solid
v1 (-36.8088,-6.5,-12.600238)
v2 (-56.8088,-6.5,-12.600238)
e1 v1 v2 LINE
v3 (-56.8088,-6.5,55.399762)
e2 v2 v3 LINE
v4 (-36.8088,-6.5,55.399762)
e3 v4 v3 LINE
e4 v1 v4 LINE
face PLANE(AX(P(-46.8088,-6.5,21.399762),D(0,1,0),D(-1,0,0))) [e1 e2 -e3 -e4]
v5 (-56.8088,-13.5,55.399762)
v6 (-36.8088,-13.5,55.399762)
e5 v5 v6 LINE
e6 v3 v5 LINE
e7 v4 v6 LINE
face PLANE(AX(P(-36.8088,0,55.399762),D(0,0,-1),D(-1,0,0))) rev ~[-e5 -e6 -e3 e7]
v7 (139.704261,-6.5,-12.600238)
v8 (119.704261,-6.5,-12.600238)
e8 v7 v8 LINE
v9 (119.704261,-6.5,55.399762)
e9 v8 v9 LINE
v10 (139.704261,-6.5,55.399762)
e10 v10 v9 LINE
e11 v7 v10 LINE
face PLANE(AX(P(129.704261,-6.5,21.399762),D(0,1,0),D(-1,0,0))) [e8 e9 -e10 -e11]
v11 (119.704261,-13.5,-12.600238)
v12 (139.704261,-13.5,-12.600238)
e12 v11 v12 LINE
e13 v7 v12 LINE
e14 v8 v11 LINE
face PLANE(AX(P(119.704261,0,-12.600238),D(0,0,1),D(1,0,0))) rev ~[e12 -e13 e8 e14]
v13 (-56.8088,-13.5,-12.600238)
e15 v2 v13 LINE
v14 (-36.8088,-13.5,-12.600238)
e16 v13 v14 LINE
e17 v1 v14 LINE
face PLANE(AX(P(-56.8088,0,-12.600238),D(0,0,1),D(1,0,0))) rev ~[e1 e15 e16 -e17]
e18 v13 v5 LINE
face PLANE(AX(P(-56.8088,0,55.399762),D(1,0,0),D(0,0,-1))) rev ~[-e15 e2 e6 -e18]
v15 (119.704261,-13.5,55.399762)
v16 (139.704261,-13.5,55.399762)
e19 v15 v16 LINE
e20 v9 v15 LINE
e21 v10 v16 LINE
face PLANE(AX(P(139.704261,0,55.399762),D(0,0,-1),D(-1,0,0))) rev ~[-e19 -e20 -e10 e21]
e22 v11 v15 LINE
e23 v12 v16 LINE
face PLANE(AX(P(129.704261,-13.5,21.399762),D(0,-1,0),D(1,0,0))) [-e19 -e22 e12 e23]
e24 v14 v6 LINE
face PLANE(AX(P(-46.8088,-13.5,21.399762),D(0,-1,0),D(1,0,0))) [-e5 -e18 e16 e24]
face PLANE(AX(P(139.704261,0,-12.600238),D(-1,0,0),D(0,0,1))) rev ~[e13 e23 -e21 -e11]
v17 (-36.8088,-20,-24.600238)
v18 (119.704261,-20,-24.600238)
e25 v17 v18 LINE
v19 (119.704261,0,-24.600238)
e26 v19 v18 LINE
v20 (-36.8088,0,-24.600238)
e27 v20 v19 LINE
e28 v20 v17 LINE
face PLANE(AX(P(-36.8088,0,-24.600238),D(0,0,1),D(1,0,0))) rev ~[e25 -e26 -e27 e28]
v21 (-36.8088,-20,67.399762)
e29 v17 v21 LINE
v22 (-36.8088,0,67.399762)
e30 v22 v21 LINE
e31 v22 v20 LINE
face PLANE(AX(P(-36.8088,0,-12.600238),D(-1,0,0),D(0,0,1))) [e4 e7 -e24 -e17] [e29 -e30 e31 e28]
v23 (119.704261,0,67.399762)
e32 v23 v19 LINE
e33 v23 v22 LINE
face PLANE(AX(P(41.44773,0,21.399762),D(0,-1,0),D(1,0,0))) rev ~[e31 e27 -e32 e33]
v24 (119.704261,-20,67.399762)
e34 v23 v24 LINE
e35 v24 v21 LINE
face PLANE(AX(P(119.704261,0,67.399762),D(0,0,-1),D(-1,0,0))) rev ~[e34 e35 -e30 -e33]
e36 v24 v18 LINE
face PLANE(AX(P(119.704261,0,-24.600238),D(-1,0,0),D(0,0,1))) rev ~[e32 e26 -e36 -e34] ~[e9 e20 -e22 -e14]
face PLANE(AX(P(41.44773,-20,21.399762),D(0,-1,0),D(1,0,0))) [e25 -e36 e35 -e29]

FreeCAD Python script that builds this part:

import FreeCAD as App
import Part
import Sketcher

V = App.Vector
Q = App.Units.Quantity

doc = App.newDocument("Part")
body = doc.addObject("PartDesign::Body", "Body")

sketch1 = body.newObject("Sketcher::SketchObject", "Sketch")
sketch1.AttachmentSupport = (doc.getObject("XZ_Plane"), [""])
sketch1.MapMode = "FlatFace"
sketch1.addGeometry([
    Part.LineSegment(V(-56.8088, 55.399762, 0), V(-56.8088, -12.600238, 0)),
    Part.LineSegment(V(-56.8088, -12.600238, 0), V(-36.8088, -12.600238, 0)),
    Part.LineSegment(V(-36.8088, -12.600238, 0), V(-36.8088, -24.600238, 0)),
    Part.LineSegment(V(-36.8088, -24.600238, 0), V(119.704261, -24.600238, 0)),
    Part.LineSegment(V(119.704261, -24.600238, 0), V(119.704261, -12.600238, 0)),
    Part.LineSegment(V(119.704261, -12.600238, 0), V(139.704261, -12.600238, 0)),
    Part.LineSegment(V(139.704261, -12.600238, 0), V(139.704261, 55.399762, 0)),
    Part.LineSegment(V(139.704261, 55.399762, 0), V(119.704261, 55.399762, 0)),
    Part.LineSegment(V(119.704261, 55.399762, 0), V(119.704261, 67.399762, 0)),
    Part.LineSegment(V(119.704261, 67.399762, 0), V(-36.8088, 67.399762, 0)),
    Part.LineSegment(V(-36.8088, 67.399762, 0), V(-36.8088, 55.399762, 0)),
    Part.LineSegment(V(-36.8088, 55.399762, 0), V(-56.8088, 55.399762, 0)),
], False)
sketch1.addConstraint([
    Sketcher.Constraint("Coincident", 0, 2, 1, 1),
    Sketcher.Constraint("Coincident", 1, 2, 2, 1),
    Sketcher.Constraint("Coincident", 2, 2, 3, 1),
    Sketcher.Constraint("Coincident", 3, 2, 4, 1),
    Sketcher.Constraint("Coincident", 4, 2, 5, 1),
    Sketcher.Constraint("Coincident", 5, 2, 6, 1),
    Sketcher.Constraint("Coincident", 6, 2, 7, 1),
    Sketcher.Constraint("Coincident", 7, 2, 8, 1),
    Sketcher.Constraint("Coincident", 8, 2, 9, 1),
    Sketcher.Constraint("Coincident", 9, 2, 10, 1),
    Sketcher.Constraint("Coincident", 10, 2, 11, 1),
    Sketcher.Constraint("Coincident", 11, 2, 0, 1),
    Sketcher.Constraint("Vertical", 0),
    Sketcher.Constraint("Horizontal", 1),
    Sketcher.Constraint("Vertical", 2),
    Sketcher.Constraint("Horizontal", 3),
    Sketcher.Constraint("Vertical", 4),
    Sketcher.Constraint("Horizontal", 5),
    Sketcher.Constraint("Vertical", 6),
    Sketcher.Constraint("Horizontal", 7),
    Sketcher.Constraint("Vertical", 8),
    Sketcher.Constraint("Horizontal", 9),
    Sketcher.Constraint("Vertical", 10),
    Sketcher.Constraint("Horizontal", 11),
    Sketcher.Constraint("Horizontal", 1, 2, 4, 2),
    Sketcher.Constraint("Horizontal", 7, 2, 10, 2),
    Sketcher.Constraint("Vertical", 4, 2, 7, 2),
    Sketcher.Constraint("Vertical", 2, 2, 9, 2),
    Sketcher.Constraint("Equal", 1, 5),
    Sketcher.Constraint("Equal", 4, 8),
    Sketcher.Constraint("DistanceX", 1, 1, 1, 2, Q("20 mm")),
    Sketcher.Constraint("DistanceY", 0, 2, 0, 1, Q("68 mm")),
    Sketcher.Constraint("DistanceY", 2, 2, 2, 1, Q("12 mm")),
    Sketcher.Constraint("DistanceX", 3, 1, 3, 2, Q("156.513061 mm")),
    Sketcher.Constraint("DistanceX", 0, 2, -1, 1, Q("56.8088 mm")),
    Sketcher.Constraint("DistanceY", 2, 2, -1, 1, Q("24.600238 mm")),
])
pad1 = body.newObject("PartDesign::Pad", "Pad")
pad1.Profile = sketch1
pad1.Length = 20

sketch2 = body.newObject("Sketcher::SketchObject", "Sketch001")
sketch2.AttachmentSupport = (doc.getObject("XZ_Plane"), [""])
sketch2.MapMode = "FlatFace"
sketch2.AttachmentOffset = App.Placement(V(0, 0, 20), App.Rotation())
sketch2.addGeometry([
    Part.LineSegment(V(119.704261, 55.399762, 0), V(119.704261, -12.600238, 0)),
    Part.LineSegment(V(119.704261, -12.600238, 0), V(139.704261, -12.600238, 0)),
    Part.LineSegment(V(139.704261, -12.600238, 0), V(139.704261, 55.399762, 0)),
    Part.LineSegment(V(139.704261, 55.399762, 0), V(119.704261, 55.399762, 0)),
    Part.LineSegment(V(-56.8088, 55.399762, 0), V(-56.8088, -12.600238, 0)),
    Part.LineSegment(V(-56.8088, -12.600238, 0), V(-36.8088, -12.600238, 0)),
    Part.LineSegment(V(-36.8088, -12.600238, 0), V(-36.8088, 55.399762, 0)),
    Part.LineSegment(V(-36.8088, 55.399762, 0), V(-56.8088, 55.399762, 0)),
], False)
sketch2.addConstraint([
    Sketcher.Constraint("Coincident", 0, 2, 1, 1),
    Sketcher.Constraint("Coincident", 1, 2, 2, 1),
    Sketcher.Constraint("Coincident", 2, 2, 3, 1),
    Sketcher.Constraint("Coincident", 3, 2, 0, 1),
    Sketcher.Constraint("Coincident", 4, 2, 5, 1),
    Sketcher.Constraint("Coincident", 5, 2, 6, 1),
    Sketcher.Constraint("Coincident", 6, 2, 7, 1),
    Sketcher.Constraint("Coincident", 7, 2, 4, 1),
    Sketcher.Constraint("Vertical", 0),
    Sketcher.Constraint("Horizontal", 1),
    Sketcher.Constraint("Vertical", 2),
    Sketcher.Constraint("Horizontal", 3),
    Sketcher.Constraint("Vertical", 4),
    Sketcher.Constraint("Horizontal", 5),
    Sketcher.Constraint("Vertical", 6),
    Sketcher.Constraint("Horizontal", 7),
    Sketcher.Constraint("Horizontal", 1, 2, 4, 2),
    Sketcher.Constraint("Horizontal", 3, 2, 6, 2),
    Sketcher.Constraint("Equal", 3, 5),
    Sketcher.Constraint("DistanceX", 1, 1, 1, 2, Q("20 mm")),
    Sketcher.Constraint("DistanceY", 0, 2, 0, 1, Q("68 mm")),
    Sketcher.Constraint("DistanceX", 4, 2, -1, 1, Q("56.8088 mm")),
    Sketcher.Constraint("DistanceX", -1, 1, 0, 2, Q("119.704261 mm")),
    Sketcher.Constraint("DistanceY", 0, 2, -1, 1, Q("12.600238 mm")),
])
pocket1 = body.newObject("PartDesign::Pocket", "Pocket")
pocket1.Profile = sketch2
pocket1.Length = 6.5

sketch3 = body.newObject("Sketcher::SketchObject", "Sketch002")
sketch3.AttachmentSupport = (doc.getObject("XZ_Plane"), [""])
sketch3.MapMode = "FlatFace"
sketch3.addGeometry([
    Part.LineSegment(V(139.704261, 55.399762, 0), V(139.704261, -12.600238, 0)),
    Part.LineSegment(V(139.704261, -12.600238, 0), V(119.704261, -12.600238, 0)),
    Part.LineSegment(V(119.704261, -12.600238, 0), V(119.704261, 55.399762, 0)),
    Part.LineSegment(V(119.704261, 55.399762, 0), V(139.704261, 55.399762, 0)),
    Part.LineSegment(V(-36.8088, 55.399762, 0), V(-36.8088, -12.600238, 0)),
    Part.LineSegment(V(-36.8088, -12.600238, 0), V(-56.8088, -12.600238, 0)),
    Part.LineSegment(V(-56.8088, -12.600238, 0), V(-56.8088, 55.399762, 0)),
    Part.LineSegment(V(-56.8088, 55.399762, 0), V(-36.8088, 55.399762, 0)),
], False)
sketch3.addConstraint([
    Sketcher.Constraint("Coincident", 0, 2, 1, 1),
    Sketcher.Constraint("Coincident", 1, 2, 2, 1),
    Sketcher.Constraint("Coincident", 2, 2, 3, 1),
    Sketcher.Constraint("Coincident", 3, 2, 0, 1),
    Sketcher.Constraint("Coincident", 4, 2, 5, 1),
    Sketcher.Constraint("Coincident", 5, 2, 6, 1),
    Sketcher.Constraint("Coincident", 6, 2, 7, 1),
    Sketcher.Constraint("Coincident", 7, 2, 4, 1),
    Sketcher.Constraint("Vertical", 0),
    Sketcher.Constraint("Horizontal", 1),
    Sketcher.Constraint("Vertical", 2),
    Sketcher.Constraint("Horizontal", 3),
    Sketcher.Constraint("Vertical", 4),
    Sketcher.Constraint("Horizontal", 5),
    Sketcher.Constraint("Vertical", 6),
    Sketcher.Constraint("Horizontal", 7),
    Sketcher.Constraint("Horizontal", 1, 2, 4, 2),
    Sketcher.Constraint("Horizontal", 3, 2, 6, 2),
    Sketcher.Constraint("Equal", 3, 5),
    Sketcher.Constraint("DistanceX", 1, 2, 1, 1, Q("20 mm")),
    Sketcher.Constraint("DistanceY", 0, 2, 0, 1, Q("68 mm")),
    Sketcher.Constraint("DistanceX", 4, 2, -1, 1, Q("36.8088 mm")),
    Sketcher.Constraint("DistanceX", -1, 1, 0, 2, Q("139.704261 mm")),
    Sketcher.Constraint("DistanceY", 0, 2, -1, 1, Q("12.600238 mm")),
])
pocket2 = body.newObject("PartDesign::Pocket", "Pocket001")
pocket2.Profile = sketch3
pocket2.Length = 6.5
pocket2.Reversed = True

doc.recompute()
